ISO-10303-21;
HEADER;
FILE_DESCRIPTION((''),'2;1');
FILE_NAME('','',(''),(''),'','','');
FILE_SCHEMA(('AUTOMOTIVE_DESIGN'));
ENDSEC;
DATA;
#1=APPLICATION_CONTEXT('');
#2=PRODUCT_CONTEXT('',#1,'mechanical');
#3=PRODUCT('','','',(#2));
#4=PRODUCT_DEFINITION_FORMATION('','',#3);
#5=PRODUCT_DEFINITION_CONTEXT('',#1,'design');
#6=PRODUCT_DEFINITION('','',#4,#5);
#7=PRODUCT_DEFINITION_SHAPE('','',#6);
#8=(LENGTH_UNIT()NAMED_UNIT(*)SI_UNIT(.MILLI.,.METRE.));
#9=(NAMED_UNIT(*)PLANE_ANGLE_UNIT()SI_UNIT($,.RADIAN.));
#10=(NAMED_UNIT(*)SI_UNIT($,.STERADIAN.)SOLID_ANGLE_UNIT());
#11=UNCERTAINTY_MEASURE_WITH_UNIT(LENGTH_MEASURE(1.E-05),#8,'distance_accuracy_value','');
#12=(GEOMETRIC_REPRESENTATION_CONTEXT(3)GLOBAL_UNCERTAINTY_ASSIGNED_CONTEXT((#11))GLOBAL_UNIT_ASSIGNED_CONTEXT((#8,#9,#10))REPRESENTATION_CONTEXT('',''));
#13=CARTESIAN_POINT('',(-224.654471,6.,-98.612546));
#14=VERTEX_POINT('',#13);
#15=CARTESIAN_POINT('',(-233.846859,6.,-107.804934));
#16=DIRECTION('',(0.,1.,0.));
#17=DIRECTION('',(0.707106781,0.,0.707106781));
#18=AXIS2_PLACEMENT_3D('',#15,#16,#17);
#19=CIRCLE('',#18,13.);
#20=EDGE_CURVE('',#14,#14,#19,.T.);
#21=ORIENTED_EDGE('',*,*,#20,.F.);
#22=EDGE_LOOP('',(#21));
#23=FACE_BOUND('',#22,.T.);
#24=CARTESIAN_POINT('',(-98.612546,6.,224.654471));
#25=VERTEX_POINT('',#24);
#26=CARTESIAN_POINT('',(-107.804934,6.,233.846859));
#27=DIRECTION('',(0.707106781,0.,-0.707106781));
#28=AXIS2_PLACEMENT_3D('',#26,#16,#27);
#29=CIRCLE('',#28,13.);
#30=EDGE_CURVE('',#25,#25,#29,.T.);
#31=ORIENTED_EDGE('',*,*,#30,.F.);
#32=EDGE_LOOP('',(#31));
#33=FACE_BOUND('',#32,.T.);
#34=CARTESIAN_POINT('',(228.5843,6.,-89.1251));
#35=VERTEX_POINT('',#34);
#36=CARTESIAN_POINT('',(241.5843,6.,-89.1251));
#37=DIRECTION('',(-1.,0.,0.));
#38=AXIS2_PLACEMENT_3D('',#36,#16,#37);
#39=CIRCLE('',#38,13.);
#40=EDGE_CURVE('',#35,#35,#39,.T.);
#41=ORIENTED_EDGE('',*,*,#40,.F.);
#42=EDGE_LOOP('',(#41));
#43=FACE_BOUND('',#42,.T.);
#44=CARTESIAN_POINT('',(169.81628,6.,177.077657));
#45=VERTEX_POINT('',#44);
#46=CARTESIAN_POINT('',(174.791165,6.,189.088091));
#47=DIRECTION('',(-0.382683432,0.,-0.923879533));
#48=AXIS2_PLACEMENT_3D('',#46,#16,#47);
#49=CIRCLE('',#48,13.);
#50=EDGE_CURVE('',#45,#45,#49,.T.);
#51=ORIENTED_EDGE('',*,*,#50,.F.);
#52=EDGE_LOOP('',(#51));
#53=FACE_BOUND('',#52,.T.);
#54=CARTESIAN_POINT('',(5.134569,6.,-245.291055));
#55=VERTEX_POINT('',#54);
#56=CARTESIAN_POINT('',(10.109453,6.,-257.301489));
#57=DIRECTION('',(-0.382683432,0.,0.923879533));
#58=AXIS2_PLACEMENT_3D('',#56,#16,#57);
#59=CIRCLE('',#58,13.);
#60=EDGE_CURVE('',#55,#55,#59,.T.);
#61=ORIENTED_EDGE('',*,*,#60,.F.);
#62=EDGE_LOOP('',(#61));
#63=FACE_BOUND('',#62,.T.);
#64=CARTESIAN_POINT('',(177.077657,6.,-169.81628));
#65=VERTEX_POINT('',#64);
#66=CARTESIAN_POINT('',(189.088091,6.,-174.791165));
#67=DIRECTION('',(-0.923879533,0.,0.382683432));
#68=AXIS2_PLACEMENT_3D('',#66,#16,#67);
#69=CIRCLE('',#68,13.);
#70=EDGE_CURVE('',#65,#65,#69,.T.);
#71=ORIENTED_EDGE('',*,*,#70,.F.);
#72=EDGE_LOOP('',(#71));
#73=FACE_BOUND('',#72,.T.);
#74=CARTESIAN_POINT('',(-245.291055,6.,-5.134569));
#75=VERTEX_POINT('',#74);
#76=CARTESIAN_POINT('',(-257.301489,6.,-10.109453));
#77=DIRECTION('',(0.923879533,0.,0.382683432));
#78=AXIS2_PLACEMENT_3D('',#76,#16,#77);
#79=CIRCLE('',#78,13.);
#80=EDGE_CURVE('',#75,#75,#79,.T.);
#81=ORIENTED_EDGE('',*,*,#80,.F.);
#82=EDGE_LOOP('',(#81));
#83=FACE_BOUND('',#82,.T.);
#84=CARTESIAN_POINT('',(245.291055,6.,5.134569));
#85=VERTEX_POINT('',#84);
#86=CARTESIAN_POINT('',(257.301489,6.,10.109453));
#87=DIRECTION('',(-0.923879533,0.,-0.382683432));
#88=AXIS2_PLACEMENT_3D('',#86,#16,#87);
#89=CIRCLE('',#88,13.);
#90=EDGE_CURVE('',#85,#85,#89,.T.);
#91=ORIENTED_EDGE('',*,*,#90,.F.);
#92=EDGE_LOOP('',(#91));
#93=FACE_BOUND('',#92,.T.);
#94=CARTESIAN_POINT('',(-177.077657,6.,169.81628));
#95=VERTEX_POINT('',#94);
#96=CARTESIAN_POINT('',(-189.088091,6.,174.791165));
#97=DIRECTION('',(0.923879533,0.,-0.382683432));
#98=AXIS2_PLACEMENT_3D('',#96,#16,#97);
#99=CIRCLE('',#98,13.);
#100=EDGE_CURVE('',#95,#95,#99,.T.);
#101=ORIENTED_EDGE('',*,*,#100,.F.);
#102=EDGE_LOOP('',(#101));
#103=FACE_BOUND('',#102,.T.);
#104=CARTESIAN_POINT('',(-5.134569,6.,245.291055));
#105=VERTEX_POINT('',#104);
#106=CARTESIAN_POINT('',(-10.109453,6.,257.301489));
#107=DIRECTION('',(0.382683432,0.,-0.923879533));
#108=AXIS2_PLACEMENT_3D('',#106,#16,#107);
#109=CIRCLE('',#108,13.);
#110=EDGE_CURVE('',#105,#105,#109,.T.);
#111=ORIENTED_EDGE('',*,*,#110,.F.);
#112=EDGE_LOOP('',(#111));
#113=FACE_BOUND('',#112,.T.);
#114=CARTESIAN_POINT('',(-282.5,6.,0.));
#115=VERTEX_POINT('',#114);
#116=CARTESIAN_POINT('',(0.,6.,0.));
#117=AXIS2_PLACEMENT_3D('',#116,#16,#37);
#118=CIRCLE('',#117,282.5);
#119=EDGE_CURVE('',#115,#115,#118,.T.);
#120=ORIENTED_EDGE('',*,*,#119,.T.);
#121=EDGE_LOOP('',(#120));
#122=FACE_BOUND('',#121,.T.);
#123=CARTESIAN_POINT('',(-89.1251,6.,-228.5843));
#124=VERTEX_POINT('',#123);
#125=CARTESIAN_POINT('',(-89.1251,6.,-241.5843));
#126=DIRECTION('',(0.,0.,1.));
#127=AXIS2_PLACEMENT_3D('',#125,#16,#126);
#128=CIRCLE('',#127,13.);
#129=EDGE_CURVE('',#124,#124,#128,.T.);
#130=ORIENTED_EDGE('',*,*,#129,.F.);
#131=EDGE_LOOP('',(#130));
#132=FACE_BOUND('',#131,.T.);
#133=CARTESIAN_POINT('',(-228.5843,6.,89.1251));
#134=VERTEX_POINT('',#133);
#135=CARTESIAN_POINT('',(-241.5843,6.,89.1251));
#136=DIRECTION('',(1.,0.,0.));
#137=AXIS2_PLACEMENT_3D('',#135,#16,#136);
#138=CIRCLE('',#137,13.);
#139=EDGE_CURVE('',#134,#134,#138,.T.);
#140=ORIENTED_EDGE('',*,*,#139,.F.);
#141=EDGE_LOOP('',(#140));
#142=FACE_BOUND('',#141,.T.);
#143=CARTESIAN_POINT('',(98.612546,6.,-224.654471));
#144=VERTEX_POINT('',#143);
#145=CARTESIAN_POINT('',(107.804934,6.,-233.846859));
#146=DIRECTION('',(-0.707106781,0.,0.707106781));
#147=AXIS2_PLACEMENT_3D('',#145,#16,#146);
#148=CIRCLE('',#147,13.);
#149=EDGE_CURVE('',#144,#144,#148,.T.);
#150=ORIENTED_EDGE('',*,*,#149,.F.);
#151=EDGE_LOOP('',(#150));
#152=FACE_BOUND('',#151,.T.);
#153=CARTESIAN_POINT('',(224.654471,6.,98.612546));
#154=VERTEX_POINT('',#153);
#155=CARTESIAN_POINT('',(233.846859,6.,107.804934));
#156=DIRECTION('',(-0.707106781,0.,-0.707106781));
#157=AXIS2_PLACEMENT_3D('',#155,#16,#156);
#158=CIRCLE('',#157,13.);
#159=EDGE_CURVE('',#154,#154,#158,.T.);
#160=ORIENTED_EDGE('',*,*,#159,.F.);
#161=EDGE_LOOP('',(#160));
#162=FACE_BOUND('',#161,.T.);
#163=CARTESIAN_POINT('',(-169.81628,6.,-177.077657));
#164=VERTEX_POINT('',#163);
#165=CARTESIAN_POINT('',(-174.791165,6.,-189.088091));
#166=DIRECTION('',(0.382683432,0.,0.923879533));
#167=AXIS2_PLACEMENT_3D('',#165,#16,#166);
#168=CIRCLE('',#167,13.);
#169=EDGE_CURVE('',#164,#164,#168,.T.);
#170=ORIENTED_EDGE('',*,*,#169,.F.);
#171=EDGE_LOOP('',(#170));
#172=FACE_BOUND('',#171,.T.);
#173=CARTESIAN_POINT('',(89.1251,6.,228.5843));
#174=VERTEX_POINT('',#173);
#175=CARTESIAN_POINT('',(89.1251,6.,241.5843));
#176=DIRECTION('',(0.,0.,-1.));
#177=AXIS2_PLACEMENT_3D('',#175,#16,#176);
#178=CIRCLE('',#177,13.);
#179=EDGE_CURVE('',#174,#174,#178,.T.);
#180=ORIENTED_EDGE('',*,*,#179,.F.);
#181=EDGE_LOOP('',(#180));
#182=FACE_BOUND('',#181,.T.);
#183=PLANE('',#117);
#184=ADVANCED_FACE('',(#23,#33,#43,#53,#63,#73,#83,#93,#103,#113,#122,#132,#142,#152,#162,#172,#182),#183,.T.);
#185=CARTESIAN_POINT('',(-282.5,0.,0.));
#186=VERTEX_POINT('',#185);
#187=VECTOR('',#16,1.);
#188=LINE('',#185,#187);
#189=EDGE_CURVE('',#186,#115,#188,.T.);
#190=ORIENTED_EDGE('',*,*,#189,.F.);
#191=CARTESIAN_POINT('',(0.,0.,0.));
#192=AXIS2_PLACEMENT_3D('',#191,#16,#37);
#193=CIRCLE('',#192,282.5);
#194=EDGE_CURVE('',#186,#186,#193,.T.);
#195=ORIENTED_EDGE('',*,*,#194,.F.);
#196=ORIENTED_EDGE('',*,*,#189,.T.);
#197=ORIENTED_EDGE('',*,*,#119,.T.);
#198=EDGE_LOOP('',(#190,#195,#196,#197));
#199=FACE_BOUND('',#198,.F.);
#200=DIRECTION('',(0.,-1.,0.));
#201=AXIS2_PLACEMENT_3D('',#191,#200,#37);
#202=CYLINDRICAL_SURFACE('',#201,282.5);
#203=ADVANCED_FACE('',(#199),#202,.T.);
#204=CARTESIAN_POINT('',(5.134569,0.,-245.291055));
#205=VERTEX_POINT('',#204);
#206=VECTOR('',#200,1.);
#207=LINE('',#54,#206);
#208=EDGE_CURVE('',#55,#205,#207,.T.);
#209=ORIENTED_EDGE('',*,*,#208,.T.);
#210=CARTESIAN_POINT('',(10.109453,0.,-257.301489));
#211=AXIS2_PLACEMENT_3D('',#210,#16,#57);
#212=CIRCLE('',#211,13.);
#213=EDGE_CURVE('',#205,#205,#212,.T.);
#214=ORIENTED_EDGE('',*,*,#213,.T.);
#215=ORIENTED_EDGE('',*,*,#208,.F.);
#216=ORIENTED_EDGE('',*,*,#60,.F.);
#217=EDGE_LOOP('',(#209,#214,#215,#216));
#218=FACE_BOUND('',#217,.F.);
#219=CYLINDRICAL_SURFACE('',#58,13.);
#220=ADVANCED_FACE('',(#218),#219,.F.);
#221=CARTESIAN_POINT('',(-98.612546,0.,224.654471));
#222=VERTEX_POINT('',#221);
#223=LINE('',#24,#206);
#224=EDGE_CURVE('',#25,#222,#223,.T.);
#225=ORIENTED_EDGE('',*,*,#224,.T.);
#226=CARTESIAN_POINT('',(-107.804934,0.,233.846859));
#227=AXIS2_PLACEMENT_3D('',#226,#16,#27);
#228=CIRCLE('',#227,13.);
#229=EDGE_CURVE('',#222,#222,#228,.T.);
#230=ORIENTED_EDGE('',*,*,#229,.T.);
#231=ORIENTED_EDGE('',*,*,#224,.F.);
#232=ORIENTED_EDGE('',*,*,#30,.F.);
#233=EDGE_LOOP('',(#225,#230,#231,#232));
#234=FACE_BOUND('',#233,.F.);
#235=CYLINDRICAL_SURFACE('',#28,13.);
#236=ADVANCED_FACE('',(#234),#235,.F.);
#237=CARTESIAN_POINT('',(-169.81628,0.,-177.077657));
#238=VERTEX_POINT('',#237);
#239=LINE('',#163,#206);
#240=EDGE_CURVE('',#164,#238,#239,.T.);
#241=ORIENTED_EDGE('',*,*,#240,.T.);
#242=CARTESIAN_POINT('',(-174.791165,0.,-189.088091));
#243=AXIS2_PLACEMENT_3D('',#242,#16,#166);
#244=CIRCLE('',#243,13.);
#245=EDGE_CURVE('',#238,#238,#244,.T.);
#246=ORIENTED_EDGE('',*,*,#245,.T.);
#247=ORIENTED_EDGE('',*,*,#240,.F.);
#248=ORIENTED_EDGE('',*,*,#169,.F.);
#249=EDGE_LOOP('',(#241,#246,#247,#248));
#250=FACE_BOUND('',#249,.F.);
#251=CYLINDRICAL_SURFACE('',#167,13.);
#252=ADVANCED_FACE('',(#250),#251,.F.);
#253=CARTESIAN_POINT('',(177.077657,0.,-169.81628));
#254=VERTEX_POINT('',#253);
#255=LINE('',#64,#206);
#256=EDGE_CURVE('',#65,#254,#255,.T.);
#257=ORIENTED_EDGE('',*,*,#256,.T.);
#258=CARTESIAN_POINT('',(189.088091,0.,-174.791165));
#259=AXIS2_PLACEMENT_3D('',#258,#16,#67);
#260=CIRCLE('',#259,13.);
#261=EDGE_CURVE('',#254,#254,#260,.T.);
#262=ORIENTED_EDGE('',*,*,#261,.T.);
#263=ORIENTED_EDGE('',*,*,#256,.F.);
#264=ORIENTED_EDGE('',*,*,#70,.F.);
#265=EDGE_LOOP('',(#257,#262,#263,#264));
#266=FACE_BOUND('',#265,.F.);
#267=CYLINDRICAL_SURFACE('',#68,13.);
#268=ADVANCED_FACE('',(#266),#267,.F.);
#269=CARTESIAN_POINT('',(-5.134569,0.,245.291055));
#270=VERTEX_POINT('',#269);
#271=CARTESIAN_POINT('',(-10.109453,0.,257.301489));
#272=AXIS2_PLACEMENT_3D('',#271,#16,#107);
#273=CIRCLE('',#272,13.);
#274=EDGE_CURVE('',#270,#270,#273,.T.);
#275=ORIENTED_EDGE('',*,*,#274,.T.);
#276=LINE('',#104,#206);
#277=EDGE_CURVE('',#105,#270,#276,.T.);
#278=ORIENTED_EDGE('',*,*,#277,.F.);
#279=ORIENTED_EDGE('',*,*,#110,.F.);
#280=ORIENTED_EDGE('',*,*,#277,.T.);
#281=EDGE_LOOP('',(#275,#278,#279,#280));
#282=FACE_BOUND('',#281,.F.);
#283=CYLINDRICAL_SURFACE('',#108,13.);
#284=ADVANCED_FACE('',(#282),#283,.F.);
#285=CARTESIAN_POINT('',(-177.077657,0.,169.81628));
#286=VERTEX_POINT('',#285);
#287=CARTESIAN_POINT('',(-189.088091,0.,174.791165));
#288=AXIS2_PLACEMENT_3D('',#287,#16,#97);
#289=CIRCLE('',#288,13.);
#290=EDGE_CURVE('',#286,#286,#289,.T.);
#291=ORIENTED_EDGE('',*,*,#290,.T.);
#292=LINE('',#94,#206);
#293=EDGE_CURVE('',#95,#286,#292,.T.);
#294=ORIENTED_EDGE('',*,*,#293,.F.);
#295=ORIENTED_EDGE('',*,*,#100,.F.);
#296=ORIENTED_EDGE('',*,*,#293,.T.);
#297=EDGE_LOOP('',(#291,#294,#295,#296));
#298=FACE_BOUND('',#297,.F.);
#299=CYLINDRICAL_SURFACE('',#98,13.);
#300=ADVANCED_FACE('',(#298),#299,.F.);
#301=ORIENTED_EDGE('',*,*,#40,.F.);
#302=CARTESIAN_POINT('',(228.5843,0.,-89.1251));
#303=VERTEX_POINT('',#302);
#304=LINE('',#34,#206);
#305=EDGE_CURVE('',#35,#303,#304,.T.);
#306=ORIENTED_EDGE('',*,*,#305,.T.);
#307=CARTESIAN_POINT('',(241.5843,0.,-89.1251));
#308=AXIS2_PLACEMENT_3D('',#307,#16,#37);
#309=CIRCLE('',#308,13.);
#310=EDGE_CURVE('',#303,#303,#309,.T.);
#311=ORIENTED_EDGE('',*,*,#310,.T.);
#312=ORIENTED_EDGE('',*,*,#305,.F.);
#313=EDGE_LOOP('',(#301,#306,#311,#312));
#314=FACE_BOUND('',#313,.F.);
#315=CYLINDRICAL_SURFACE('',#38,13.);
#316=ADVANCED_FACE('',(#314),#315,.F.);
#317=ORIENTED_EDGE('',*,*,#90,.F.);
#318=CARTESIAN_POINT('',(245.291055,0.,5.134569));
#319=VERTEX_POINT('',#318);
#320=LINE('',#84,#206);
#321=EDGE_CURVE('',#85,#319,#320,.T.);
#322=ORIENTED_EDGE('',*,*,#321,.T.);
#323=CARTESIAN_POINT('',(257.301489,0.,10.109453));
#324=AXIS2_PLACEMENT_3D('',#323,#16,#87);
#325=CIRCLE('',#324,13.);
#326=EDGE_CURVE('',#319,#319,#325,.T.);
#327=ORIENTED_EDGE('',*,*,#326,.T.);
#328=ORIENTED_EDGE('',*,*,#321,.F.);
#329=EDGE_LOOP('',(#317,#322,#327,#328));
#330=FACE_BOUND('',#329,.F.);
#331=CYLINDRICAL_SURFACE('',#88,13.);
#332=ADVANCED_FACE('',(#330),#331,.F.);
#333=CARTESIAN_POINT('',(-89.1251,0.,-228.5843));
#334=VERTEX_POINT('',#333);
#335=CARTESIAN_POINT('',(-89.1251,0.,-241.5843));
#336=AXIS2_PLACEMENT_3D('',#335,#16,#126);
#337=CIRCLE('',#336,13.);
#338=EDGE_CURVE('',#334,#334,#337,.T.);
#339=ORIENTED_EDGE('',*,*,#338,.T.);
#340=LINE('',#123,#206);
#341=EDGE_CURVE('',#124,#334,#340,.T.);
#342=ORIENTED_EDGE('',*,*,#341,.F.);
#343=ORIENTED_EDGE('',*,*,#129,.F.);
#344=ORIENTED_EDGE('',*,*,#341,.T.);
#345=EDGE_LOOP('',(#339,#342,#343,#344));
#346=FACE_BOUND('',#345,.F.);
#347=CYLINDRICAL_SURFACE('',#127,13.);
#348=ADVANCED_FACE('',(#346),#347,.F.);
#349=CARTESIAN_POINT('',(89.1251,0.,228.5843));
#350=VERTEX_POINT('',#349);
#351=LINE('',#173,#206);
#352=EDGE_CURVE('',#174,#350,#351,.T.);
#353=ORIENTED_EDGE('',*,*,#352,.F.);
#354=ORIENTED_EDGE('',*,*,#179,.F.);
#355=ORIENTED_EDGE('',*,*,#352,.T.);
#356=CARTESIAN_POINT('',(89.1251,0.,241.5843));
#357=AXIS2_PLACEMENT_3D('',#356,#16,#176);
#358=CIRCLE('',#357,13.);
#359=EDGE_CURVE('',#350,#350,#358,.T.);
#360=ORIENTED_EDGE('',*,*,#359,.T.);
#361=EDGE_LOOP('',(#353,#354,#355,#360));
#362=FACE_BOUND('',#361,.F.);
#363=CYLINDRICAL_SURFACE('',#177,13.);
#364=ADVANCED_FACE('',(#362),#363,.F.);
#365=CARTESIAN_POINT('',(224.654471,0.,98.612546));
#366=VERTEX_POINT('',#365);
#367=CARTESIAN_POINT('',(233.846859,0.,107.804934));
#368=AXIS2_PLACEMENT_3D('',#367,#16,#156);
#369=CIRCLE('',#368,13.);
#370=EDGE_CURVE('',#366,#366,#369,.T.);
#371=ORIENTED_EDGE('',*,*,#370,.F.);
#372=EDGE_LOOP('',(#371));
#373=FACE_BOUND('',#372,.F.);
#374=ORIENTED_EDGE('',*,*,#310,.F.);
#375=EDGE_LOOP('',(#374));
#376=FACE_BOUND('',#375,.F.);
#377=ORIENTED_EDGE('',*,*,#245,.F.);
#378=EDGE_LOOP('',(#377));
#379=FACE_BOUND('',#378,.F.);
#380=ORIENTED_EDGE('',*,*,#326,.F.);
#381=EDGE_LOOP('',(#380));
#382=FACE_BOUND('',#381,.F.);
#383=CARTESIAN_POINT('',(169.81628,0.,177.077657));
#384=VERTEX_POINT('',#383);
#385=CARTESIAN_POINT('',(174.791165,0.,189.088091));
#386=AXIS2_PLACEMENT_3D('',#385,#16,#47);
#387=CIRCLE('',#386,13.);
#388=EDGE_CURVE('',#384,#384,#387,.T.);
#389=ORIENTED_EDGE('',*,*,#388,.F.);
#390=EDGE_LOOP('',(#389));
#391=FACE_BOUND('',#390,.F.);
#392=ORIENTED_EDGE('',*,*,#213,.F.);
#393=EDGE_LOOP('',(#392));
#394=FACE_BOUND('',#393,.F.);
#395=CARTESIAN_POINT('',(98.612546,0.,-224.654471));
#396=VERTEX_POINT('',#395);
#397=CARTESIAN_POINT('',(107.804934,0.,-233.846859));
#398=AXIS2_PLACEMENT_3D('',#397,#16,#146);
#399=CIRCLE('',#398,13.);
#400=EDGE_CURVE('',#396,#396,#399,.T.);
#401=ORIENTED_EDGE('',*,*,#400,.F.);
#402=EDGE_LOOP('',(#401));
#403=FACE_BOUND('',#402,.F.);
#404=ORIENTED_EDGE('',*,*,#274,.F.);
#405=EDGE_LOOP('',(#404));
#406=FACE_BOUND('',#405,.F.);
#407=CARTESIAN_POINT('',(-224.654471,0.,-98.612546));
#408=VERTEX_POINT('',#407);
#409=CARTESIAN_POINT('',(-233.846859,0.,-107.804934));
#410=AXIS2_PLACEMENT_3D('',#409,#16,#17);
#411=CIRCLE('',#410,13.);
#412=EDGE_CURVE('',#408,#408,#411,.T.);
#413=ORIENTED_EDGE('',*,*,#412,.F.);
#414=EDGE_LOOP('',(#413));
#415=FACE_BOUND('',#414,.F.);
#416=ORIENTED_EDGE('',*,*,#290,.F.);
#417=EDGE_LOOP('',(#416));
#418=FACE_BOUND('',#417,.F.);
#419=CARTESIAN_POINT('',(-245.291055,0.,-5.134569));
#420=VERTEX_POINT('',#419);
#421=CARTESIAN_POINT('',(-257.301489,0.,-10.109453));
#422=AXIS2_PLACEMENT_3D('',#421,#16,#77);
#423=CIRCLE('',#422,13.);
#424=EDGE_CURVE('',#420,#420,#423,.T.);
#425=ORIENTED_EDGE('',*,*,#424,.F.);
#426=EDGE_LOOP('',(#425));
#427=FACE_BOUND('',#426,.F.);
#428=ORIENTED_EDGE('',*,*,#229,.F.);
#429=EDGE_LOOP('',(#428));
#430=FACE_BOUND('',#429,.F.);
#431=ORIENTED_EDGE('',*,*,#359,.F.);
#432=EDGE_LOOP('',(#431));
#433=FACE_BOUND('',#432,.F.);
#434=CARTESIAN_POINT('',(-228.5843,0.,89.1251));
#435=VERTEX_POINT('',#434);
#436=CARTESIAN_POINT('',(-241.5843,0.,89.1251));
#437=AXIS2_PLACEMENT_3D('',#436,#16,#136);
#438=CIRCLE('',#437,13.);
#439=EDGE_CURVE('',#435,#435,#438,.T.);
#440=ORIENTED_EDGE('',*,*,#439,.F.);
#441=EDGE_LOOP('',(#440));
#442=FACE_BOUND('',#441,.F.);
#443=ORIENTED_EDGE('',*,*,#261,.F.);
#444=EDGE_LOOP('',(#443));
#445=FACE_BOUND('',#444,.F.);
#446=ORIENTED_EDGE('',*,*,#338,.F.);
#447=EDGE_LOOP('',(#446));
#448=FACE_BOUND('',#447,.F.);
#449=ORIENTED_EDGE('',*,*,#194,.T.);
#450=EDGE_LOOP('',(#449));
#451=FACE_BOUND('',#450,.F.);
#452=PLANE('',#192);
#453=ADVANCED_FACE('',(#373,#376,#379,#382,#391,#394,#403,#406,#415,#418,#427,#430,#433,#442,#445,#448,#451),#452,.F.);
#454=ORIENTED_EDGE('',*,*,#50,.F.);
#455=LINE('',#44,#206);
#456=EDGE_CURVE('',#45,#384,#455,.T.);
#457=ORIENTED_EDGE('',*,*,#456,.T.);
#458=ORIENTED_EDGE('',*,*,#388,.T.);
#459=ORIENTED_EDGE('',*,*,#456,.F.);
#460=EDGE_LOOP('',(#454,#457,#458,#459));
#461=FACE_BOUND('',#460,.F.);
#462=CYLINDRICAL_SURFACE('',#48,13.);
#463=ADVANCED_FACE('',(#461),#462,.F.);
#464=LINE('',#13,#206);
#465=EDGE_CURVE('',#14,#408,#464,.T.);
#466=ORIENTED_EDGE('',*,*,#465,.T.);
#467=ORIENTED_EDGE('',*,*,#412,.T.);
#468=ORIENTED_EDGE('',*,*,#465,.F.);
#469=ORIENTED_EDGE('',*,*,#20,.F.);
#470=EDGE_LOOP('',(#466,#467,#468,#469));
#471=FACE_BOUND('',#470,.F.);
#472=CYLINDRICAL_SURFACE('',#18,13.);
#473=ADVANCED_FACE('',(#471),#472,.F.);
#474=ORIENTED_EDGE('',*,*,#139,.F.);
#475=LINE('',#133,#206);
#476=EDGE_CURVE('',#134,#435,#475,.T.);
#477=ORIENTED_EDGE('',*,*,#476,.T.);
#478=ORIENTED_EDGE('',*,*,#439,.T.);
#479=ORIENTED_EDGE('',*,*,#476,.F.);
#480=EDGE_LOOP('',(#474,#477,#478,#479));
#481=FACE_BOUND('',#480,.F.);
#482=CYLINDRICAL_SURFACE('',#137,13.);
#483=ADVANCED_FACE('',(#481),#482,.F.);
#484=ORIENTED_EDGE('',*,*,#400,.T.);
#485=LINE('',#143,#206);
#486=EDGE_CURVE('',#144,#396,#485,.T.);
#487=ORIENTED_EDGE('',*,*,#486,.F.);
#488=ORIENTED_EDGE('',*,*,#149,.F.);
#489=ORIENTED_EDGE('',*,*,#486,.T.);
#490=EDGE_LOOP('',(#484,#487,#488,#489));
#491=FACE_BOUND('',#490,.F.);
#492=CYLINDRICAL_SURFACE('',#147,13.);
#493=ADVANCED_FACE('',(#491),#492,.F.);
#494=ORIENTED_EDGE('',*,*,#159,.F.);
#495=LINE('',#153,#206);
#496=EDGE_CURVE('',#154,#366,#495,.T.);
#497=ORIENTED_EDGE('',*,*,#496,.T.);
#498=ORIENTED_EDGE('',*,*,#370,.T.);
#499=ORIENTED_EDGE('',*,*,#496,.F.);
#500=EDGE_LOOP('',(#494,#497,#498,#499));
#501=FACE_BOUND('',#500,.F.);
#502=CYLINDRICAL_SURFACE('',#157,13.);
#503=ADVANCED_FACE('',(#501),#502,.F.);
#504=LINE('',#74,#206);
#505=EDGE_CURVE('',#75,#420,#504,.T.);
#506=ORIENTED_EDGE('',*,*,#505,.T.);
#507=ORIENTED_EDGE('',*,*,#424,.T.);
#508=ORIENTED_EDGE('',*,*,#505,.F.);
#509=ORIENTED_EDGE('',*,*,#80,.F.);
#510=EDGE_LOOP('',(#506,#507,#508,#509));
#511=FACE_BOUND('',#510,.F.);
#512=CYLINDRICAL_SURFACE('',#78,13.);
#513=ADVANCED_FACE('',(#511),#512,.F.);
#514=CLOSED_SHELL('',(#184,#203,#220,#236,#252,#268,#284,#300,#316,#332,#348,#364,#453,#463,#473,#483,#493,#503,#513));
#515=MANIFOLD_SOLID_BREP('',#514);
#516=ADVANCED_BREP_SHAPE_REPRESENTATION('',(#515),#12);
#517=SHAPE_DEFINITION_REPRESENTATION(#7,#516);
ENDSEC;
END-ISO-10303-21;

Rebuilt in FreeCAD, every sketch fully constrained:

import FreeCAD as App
import Part
import Sketcher
from FreeCAD import Vector

doc = App.newDocument("Part")
params = doc.addObject("Spreadsheet::Sheet", "Params")
for row, (alias, value) in enumerate([
    ("sketch1_diameter", "565 mm"),
    ("pad1_length", "6 mm"),
    ("sketch2_diameter", "26 mm"),
    ("pocket1_length", "6 mm"),
], start=1):
    params.set(f"A{row}", alias)
    params.set(f"B{row}", "=" + value)
    params.setAlias(f"B{row}", alias)

body = doc.addObject("PartDesign::Body", "Body")

sketch1 = body.newObject("Sketcher::SketchObject", "Sketch")
sketch1.AttachmentSupport = (doc.getObject("XZ_Plane"), [""])
sketch1.MapMode = "FlatFace"
sketch1.addGeometry(Part.Circle(Vector(0, 0, 0), Vector(0, 0, 1), 282), False)
sketch1.addConstraint(Sketcher.Constraint("Coincident", 0, 3, -1, 1))
sketch1.addConstraint(Sketcher.Constraint("Diameter", 0, 565.0))
sketch1.setExpression("Constraints[1]", "Params.sketch1_diameter")
pad1 = body.newObject("PartDesign::Pad", "Pad")
pad1.Profile = sketch1
pad1.setExpression("Length", "Params.pad1_length")
pad1.Reversed = True

sketch2 = body.newObject("Sketcher::SketchObject", "Sketch001")
sketch2.AttachmentSupport = (doc.getObject("XZ_Plane"), [""])
sketch2.MapMode = "FlatFace"
sketch2.AttachmentOffset = App.Placement(Vector(0, 0, -6), App.Rotation())
sketch2.addGeometry(Part.Circle(Vector(-242, 89, 0), Vector(0, 0, 1), 13), False)
sketch2.addConstraint(Sketcher.Constraint("Diameter", 0, 26.0))
sketch2.addConstraint(Sketcher.Constraint("DistanceY", -1, 1, 0, 3, 89.125))
sketch2.addConstraint(Sketcher.Constraint("DistanceX", 0, 3, -1, 1, 241.5843))
sketch2.setExpression("Constraints[0]", "Params.sketch2_diameter")
pocket1 = body.newObject("PartDesign::Pocket", "Pocket")
pocket1.Profile = sketch2
pocket1.setExpression("Length", "Params.pocket1_length")
pocket1.Reversed = True
doc.recompute()

polarpattern = body.newObject("PartDesign::PolarPattern", "PolarPattern")
polarpattern.Originals = [pocket1]
polarpattern.Axis = (doc.getObject("Y_Axis"), [""])
polarpattern.Angle = 360
polarpattern.Occurrences = 16
body.Tip = polarpattern

doc.recompute()
